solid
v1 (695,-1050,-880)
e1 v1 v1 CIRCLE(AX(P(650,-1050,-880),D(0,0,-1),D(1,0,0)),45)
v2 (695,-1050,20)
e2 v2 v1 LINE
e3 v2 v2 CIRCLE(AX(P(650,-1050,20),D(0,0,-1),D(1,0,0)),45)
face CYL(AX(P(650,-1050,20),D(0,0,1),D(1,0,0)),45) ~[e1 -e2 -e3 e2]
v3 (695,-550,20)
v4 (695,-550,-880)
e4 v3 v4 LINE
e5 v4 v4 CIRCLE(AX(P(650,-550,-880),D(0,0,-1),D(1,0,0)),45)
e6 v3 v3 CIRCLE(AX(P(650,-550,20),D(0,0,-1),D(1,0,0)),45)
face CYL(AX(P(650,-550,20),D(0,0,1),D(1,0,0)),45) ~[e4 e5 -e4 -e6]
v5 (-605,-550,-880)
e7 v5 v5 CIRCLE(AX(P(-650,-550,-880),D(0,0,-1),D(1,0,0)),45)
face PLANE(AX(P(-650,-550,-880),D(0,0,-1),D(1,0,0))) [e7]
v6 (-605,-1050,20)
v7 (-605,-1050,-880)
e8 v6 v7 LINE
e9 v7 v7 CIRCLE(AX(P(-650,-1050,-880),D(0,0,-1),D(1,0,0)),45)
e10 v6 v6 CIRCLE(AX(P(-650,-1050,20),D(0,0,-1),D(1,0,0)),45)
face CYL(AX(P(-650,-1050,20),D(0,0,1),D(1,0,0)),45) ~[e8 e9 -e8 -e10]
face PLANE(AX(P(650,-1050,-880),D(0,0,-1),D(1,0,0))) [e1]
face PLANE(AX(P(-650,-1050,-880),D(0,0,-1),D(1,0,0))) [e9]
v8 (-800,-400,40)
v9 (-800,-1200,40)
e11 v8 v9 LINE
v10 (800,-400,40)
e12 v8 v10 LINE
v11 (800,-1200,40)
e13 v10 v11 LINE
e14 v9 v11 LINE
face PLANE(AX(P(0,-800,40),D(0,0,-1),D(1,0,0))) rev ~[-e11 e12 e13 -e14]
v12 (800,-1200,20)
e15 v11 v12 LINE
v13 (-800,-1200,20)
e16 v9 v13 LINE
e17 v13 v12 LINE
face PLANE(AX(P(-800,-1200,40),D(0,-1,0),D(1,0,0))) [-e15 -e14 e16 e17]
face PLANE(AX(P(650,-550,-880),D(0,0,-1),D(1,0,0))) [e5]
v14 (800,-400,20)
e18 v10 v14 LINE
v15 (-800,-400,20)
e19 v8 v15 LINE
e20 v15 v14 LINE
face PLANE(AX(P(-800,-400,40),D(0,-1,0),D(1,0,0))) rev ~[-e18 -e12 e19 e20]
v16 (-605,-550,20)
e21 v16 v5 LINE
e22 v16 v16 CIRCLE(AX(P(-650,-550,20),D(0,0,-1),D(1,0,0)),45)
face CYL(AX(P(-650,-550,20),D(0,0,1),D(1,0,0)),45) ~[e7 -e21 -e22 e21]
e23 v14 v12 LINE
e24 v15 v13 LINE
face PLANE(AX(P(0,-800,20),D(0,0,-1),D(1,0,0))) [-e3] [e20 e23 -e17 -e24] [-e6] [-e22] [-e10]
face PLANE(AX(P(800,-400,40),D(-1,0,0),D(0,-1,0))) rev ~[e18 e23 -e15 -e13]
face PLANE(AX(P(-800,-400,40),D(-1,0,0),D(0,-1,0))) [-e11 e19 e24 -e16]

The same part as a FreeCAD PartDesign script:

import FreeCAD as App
import Part
import Sketcher

V = App.Vector


def add_polygon(sketch, points):
    """Adds a closed chain of lines whose ends are joined by coincident constraints."""
    first, n = sketch.GeometryCount, len(points)
    for a, b in zip(points, points[1:] + points[:1]):
        sketch.addGeometry(Part.LineSegment(App.Vector(*a, 0), App.Vector(*b, 0)), False)
    for i in range(n):
        sketch.addConstraint(Sketcher.Constraint("Coincident", first + i, 2, first + (i + 1) % n, 1))

doc = App.newDocument("Part")
body = doc.addObject("PartDesign::Body", "Body")

sketch1 = doc.addObject("Sketcher::SketchObject", "Sketch")
body.addObject(sketch1)
sketch1.AttachmentSupport = (doc.XY_Plane, [""])
sketch1.MapMode = "FlatFace"
add_polygon(sketch1, [(-800, 400), (-800, -400), (800, -400), (800, 400)])
sketch1.addConstraint(Sketcher.Constraint("Vertical", 0))
sketch1.addConstraint(Sketcher.Constraint("Horizontal", 1))
sketch1.addConstraint(Sketcher.Constraint("Vertical", 2))
sketch1.addConstraint(Sketcher.Constraint("Horizontal", 3))
sketch1.addConstraint(Sketcher.Constraint("Symmetric", 0, 2, 2, 2, -1, 1))
sketch1.addConstraint(Sketcher.Constraint("DistanceX", 1, 1, 1, 2, 1600.0))
sketch1.addConstraint(Sketcher.Constraint("DistanceY", 0, 2, 0, 1, 800.0))
pad1 = doc.addObject("PartDesign::Pad", "Pad")
body.addObject(pad1)
pad1.Profile = sketch1
pad1.Length = 20

sketch2 = doc.addObject("Sketcher::SketchObject", "Sketch001")
body.addObject(sketch2)
sketch2.AttachmentSupport = (doc.XY_Plane, [""])
sketch2.MapMode = "FlatFace"
sketch2.AttachmentOffset = App.Placement(V(0, 0, 20), App.Rotation())
sketch2.addGeometry(Part.Circle(V(-650, 250, 0), V(0, 0, 1), 45), False)
sketch2.addGeometry(Part.Circle(V(650, 250, 0), V(0, 0, 1), 45), False)
sketch2.addGeometry(Part.Circle(V(-650, -250, 0), V(0, 0, 1), 45), False)
sketch2.addGeometry(Part.Circle(V(650, -250, 0), V(0, 0, 1), 45), False)
sketch2.addConstraint(Sketcher.Constraint("Equal", 0, 1))
sketch2.addConstraint(Sketcher.Constraint("Equal", 1, 2))
sketch2.addConstraint(Sketcher.Constraint("Equal", 2, 3))
sketch2.addConstraint(Sketcher.Constraint("Symmetric", 1, 3, 2, 3, -1, 1))
sketch2.addConstraint(Sketcher.Constraint("Symmetric", 0, 3, 3, 3, -1, 1))
sketch2.addConstraint(Sketcher.Constraint("Symmetric", 0, 3, 1, 3, -2))
sketch2.addConstraint(Sketcher.Constraint("Diameter", 0, 90.0))
sketch2.addConstraint(Sketcher.Constraint("DistanceX", 0, 3, -1, 1, 650.0))
sketch2.addConstraint(Sketcher.Constraint("DistanceY", -1, 1, 0, 3, 250.0))
pad2 = doc.addObject("PartDesign::Pad", "Pad001")
body.addObject(pad2)
pad2.Profile = sketch2
pad2.Length = 900
body2 = doc.addObject("PartDesign::Body", "Body001")
doc.recompute()

body.Placement = App.Placement(V(0, -800, 40), App.Rotation(V(1, 0, 0), 180))
boolean = doc.addObject("PartDesign::Boolean", "Boolean")
body2.addObject(boolean)
boolean.Type = "Fuse"
boolean.addObjects([body])

doc.recompute()
